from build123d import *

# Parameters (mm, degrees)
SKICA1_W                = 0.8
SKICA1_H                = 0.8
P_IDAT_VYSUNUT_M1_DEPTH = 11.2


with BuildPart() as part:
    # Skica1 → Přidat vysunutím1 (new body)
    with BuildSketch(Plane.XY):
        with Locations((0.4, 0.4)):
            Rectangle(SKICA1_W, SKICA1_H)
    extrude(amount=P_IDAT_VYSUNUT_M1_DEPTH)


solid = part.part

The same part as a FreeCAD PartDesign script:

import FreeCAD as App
import Part
import Sketcher


def add_polygon(sketch, points):
    """Adds a closed chain of lines whose ends are joined by coincident constraints."""
    first, n = sketch.GeometryCount, len(points)
    for a, b in zip(points, points[1:] + points[:1]):
        sketch.addGeometry(Part.LineSegment(App.Vector(*a, 0), App.Vector(*b, 0)), False)
    for i in range(n):
        sketch.addConstraint(Sketcher.Constraint("Coincident", first + i, 2, first + (i + 1) % n, 1))

doc = App.newDocument("Part")
body = doc.addObject("PartDesign::Body", "Body")

sketch1 = body.newObject("Sketcher::SketchObject", "Sketch")
sketch1.AttachmentSupport = (doc.getObject("XY_Plane"), [""])
sketch1.MapMode = "FlatFace"
add_polygon(sketch1, [(0, 0.8), (0, 0), (0.8, 0), (0.8, 0.8)])
sketch1.addConstraint([
    Sketcher.Constraint("Vertical", 0),
    Sketcher.Constraint("Horizontal", 1),
    Sketcher.Constraint("Vertical", 2),
    Sketcher.Constraint("Horizontal", 3),
    Sketcher.Constraint("Coincident", 0, 2, -1, 1),
    Sketcher.Constraint("Equal", 3, 0),
    Sketcher.Constraint("DistanceX", 1, 1, 1, 2, 0.8),
])
pad1 = body.newObject("PartDesign::Pad", "Pad")
pad1.Profile = sketch1
pad1.Length = 11.2

doc.recompute()
